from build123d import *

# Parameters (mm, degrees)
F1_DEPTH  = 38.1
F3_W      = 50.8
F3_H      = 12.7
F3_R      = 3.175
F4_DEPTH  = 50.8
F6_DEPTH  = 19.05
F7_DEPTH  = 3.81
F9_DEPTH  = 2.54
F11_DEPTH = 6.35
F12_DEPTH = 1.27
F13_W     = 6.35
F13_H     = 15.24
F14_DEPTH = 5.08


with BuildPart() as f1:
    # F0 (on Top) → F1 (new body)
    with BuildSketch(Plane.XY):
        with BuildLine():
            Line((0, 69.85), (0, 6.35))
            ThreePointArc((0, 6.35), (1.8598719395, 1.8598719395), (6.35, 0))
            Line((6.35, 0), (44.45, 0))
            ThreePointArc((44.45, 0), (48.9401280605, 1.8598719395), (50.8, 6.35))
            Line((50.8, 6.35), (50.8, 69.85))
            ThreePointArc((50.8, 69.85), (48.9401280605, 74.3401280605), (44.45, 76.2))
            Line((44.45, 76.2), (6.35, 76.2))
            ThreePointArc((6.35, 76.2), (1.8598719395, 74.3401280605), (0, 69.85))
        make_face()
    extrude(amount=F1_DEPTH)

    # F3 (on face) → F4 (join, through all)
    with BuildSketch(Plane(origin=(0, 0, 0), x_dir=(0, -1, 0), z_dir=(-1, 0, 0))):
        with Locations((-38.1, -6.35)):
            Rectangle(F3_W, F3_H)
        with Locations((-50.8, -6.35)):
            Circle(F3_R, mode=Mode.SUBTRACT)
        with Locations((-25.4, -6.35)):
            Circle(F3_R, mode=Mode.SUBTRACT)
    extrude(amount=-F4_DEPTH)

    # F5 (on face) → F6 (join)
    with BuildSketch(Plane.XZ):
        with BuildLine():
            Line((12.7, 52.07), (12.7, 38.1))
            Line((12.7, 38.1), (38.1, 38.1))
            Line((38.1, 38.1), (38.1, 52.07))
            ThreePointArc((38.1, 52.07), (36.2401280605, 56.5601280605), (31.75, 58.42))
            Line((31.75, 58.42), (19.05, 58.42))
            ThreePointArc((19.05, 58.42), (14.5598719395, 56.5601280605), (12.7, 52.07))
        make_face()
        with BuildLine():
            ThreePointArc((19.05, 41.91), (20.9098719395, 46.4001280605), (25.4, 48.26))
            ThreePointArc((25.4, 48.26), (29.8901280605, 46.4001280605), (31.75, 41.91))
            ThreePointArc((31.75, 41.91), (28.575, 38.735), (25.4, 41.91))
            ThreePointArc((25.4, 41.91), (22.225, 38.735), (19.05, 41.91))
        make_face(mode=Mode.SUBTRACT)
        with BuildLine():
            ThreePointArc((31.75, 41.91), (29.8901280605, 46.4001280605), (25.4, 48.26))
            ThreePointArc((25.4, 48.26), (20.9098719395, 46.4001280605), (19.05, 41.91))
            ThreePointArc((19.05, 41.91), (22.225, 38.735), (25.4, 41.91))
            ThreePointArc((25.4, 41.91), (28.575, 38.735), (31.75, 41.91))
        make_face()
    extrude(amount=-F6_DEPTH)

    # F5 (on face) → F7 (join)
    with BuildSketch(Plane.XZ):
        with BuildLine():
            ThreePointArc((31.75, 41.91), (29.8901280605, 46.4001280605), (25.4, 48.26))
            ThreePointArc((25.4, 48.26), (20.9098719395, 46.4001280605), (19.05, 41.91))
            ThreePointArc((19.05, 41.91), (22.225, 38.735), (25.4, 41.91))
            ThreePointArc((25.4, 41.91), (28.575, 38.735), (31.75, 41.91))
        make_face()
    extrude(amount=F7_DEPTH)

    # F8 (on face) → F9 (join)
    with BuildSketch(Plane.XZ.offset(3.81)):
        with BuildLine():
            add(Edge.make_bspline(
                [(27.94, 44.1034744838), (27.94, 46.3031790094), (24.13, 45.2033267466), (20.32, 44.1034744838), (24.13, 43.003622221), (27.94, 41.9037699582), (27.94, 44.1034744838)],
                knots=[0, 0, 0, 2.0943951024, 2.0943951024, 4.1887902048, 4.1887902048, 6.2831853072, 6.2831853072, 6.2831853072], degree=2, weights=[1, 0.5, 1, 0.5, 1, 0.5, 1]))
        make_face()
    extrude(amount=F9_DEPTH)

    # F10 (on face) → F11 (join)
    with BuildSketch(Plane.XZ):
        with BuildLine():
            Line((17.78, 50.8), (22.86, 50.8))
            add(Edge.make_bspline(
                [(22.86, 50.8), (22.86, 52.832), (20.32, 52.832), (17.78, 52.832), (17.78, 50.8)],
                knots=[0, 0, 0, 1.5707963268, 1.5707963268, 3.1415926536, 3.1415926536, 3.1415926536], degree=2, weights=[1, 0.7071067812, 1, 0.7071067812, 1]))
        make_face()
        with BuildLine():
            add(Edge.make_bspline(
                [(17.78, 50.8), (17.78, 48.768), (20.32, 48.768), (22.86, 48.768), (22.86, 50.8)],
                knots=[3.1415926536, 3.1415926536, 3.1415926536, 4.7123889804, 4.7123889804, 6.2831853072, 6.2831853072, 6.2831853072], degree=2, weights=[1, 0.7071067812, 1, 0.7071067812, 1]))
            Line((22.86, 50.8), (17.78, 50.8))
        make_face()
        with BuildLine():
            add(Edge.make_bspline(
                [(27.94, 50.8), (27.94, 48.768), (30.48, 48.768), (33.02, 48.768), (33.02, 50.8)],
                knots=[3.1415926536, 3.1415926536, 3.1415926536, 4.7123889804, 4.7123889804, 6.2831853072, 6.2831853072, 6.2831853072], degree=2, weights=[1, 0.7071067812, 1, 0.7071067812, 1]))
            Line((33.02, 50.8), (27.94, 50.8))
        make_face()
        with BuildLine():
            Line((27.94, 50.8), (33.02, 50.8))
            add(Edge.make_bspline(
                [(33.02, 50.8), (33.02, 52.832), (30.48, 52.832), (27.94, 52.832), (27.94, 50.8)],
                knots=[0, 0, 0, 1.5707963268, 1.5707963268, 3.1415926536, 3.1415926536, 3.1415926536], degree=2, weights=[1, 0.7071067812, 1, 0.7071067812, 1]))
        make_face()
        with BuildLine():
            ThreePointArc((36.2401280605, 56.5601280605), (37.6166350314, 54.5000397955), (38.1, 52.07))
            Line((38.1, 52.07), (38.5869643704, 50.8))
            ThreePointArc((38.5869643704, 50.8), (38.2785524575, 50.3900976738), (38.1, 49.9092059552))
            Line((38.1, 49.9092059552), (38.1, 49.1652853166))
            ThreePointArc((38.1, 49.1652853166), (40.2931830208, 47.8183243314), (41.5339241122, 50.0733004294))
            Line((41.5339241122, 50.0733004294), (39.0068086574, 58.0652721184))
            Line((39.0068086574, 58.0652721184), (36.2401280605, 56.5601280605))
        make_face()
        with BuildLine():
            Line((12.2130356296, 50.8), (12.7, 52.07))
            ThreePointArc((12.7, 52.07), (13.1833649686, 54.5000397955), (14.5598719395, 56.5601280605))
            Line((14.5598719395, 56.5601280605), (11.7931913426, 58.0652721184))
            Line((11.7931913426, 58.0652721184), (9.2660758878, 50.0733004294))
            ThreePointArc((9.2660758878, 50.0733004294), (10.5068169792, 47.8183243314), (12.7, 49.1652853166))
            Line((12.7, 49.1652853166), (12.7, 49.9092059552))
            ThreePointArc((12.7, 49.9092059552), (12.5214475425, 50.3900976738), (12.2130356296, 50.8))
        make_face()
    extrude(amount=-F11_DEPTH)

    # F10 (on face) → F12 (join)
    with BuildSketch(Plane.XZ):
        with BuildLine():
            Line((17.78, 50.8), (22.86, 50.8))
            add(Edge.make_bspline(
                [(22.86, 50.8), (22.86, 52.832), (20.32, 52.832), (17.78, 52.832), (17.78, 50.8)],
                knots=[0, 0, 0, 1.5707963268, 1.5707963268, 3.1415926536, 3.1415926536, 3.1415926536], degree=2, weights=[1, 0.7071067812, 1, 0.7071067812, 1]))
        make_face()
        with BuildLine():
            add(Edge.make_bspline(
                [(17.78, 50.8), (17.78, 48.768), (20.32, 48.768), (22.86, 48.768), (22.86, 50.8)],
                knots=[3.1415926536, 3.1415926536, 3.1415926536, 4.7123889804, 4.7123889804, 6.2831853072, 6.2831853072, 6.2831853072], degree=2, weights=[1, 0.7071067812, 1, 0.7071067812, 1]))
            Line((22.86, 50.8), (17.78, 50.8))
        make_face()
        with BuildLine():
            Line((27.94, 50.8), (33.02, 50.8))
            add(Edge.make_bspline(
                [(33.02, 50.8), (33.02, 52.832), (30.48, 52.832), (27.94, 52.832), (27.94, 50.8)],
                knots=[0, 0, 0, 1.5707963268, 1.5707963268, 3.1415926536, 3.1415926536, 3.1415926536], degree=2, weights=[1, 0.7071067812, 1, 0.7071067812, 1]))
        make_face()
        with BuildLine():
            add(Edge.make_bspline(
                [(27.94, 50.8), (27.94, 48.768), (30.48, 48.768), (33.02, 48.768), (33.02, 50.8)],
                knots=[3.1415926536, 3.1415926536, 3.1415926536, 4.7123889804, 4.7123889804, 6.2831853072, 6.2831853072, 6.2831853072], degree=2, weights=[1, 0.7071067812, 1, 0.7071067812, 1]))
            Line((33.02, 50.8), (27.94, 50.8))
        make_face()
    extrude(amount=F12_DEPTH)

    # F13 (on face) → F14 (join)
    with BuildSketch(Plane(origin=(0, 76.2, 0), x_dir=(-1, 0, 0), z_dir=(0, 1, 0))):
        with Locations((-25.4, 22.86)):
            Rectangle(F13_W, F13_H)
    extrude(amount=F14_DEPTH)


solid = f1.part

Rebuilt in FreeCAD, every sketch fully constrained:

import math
import FreeCAD as App
import Part
import Sketcher
Q = App.Units.Quantity


def add_polygon(sketch, points):
    """Adds a closed chain of lines whose ends are joined by coincident constraints."""
    first, n = sketch.GeometryCount, len(points)
    for a, b in zip(points, points[1:] + points[:1]):
        sketch.addGeometry(Part.LineSegment(App.Vector(*a, 0), App.Vector(*b, 0)), False)
    for i in range(n):
        sketch.addConstraint(Sketcher.Constraint("Coincident", first + i, 2, first + (i + 1) % n, 1))

doc = App.newDocument("Part")
body = doc.addObject("PartDesign::Body", "Body")

# Sketch on XY plane
sketch1 = body.newObject("Sketcher::SketchObject", "Sketch")
sketch1.AttachmentSupport = (doc.getObject("XY_Plane"), [""])
sketch1.MapMode = "FlatFace"
sketch1.addGeometry([
    Part.LineSegment(App.Vector(0, 69.85, 0), App.Vector(0, 6.35, 0)),  # 0
    Part.ArcOfCircle(Part.Circle(App.Vector(6.35, 6.35, 0), App.Vector(0, 0, 1), 6.35), math.radians(180), math.radians(270)),  # 1
    Part.LineSegment(App.Vector(6.35, 0, 0), App.Vector(44.45, 0, 0)),  # 2
    Part.ArcOfCircle(Part.Circle(App.Vector(44.45, 6.35, 0), App.Vector(0, 0, 1), 6.35), math.radians(-90), math.radians(0)),  # 3
    Part.LineSegment(App.Vector(50.8, 6.35, 0), App.Vector(50.8, 69.85, 0)),  # 4
    Part.ArcOfCircle(Part.Circle(App.Vector(44.45, 69.85, 0), App.Vector(0, 0, 1), 6.35), math.radians(0), math.radians(90)),  # 5
    Part.LineSegment(App.Vector(44.45, 76.2, 0), App.Vector(6.35, 76.2, 0)),  # 6
    Part.ArcOfCircle(Part.Circle(App.Vector(6.35, 69.85, 0), App.Vector(0, 0, 1), 6.35), math.radians(90), math.radians(180)),  # 7
], False)
sketch1.addConstraint([
    Sketcher.Constraint("Tangent", 0, 2, 1, 1),
    Sketcher.Constraint("Tangent", 1, 2, 2, 1),
    Sketcher.Constraint("Tangent", 2, 2, 3, 1),
    Sketcher.Constraint("Tangent", 3, 2, 4, 1),
    Sketcher.Constraint("Tangent", 4, 2, 5, 1),
    Sketcher.Constraint("Tangent", 5, 2, 6, 1),
    Sketcher.Constraint("Tangent", 6, 2, 7, 1),
    Sketcher.Constraint("Tangent", 7, 2, 0, 1),
    Sketcher.Constraint("Vertical", 0),
    Sketcher.Constraint("Horizontal", 2),
    Sketcher.Constraint("Vertical", 4),
    Sketcher.Constraint("Horizontal", 6),
    Sketcher.Constraint("Equal", 1, 3),
    Sketcher.Constraint("Equal", 3, 5),
    Sketcher.Constraint("Equal", 5, 7),
    Sketcher.Constraint("PointOnObject", 0, 2, -2),
    Sketcher.Constraint("PointOnObject", 1, 2, -1),
    Sketcher.Constraint("Radius", 1, Q("0.25 in")),
    Sketcher.Constraint("DistanceX", 2, 1, 2, 2, Q("1.5 in")),
    Sketcher.Constraint("DistanceY", 0, 2, 0, 1, Q("2.5 in")),
])
pad1 = body.newObject("PartDesign::Pad", "Pad")
pad1.Profile = sketch1
pad1.Length = Q("1.5 in")

# Sketch on YZ plane
sketch2 = body.newObject("Sketcher::SketchObject", "Sketch001")
sketch2.AttachmentSupport = (doc.getObject("YZ_Plane"), [""])
sketch2.MapMode = "FlatFace"
add_polygon(sketch2, [(63.5, 0), (63.5, -12.7), (12.7, -12.7), (12.7, 0)])  # lines 0-3
sketch2.addGeometry(Part.Circle(App.Vector(50.8, -6.35, 0), App.Vector(0, 0, 1), 3.175), False)  # 4
sketch2.addGeometry(Part.Circle(App.Vector(25.4, -6.35, 0), App.Vector(0, 0, 1), 3.175), False)  # 5
sketch2.addConstraint([
    Sketcher.Constraint("Vertical", 0),
    Sketcher.Constraint("Horizontal", 1),
    Sketcher.Constraint("Vertical", 2),
    Sketcher.Constraint("Horizontal", 3),
    Sketcher.Constraint("Equal", 4, 5),
    Sketcher.Constraint("PointOnObject", 2, 2, -1),
    Sketcher.Constraint("Horizontal", 4, 3, 5, 3),
    Sketcher.Constraint("Diameter", 4, Q("0.25 in")),
    Sketcher.Constraint("DistanceX", 1, 2, 1, 1, Q("2 in")),
    Sketcher.Constraint("DistanceY", 0, 2, 0, 1, Q("0.5 in")),
    Sketcher.Constraint("DistanceX", -1, 1, 4, 3, Q("2 in")),
    Sketcher.Constraint("DistanceX", -1, 1, 5, 3, Q("1 in")),
    Sketcher.Constraint("DistanceX", -1, 1, 0, 2, Q("2.5 in")),
    Sketcher.Constraint("DistanceY", 4, 3, -1, 1, Q("0.25 in")),
])
pad2 = body.newObject("PartDesign::Pad", "Pad001")
pad2.Profile = sketch2
pad2.Length = Q("2 in")

# Sketch on XZ plane
sketch3 = body.newObject("Sketcher::SketchObject", "Sketch002")
sketch3.AttachmentSupport = (doc.getObject("XZ_Plane"), [""])
sketch3.MapMode = "FlatFace"
sketch3.addGeometry([
    Part.LineSegment(App.Vector(12.7, 52.07, 0), App.Vector(12.7, 38.1, 0)),  # 0
    Part.LineSegment(App.Vector(12.7, 38.1, 0), App.Vector(38.1, 38.1, 0)),  # 1
    Part.LineSegment(App.Vector(38.1, 38.1, 0), App.Vector(38.1, 52.07, 0)),  # 2
    Part.ArcOfCircle(Part.Circle(App.Vector(31.75, 52.07, 0), App.Vector(0, 0, 1), 6.35), math.radians(0), math.radians(90)),  # 3
    Part.LineSegment(App.Vector(31.75, 58.42, 0), App.Vector(19.05, 58.42, 0)),  # 4
    Part.ArcOfCircle(Part.Circle(App.Vector(19.05, 52.07, 0), App.Vector(0, 0, 1), 6.35), math.radians(90), math.radians(180)),  # 5
], False)
sketch3.addConstraint([
    Sketcher.Constraint("Coincident", 0, 2, 1, 1),
    Sketcher.Constraint("Coincident", 1, 2, 2, 1),
    Sketcher.Constraint("Tangent", 2, 2, 3, 1),
    Sketcher.Constraint("Tangent", 3, 2, 4, 1),
    Sketcher.Constraint("Tangent", 4, 2, 5, 1),
    Sketcher.Constraint("Tangent", 5, 2, 0, 1),
    Sketcher.Constraint("Vertical", 0),
    Sketcher.Constraint("Horizontal", 1),
    Sketcher.Constraint("Vertical", 2),
    Sketcher.Constraint("Horizontal", 4),
    Sketcher.Constraint("Equal", 3, 5),
    Sketcher.Constraint("DistanceX", 1, 1, 1, 2, Q("1 in")),
    Sketcher.Constraint("Radius", 3, Q("0.25 in")),
    Sketcher.Constraint("DistanceY", 0, 2, 0, 1, Q("0.55 in")),
    Sketcher.Constraint("DistanceX", -1, 1, 0, 2, Q("0.5 in")),
    Sketcher.Constraint("DistanceY", -1, 1, 0, 2, Q("1.5 in")),
])
pad3 = body.newObject("PartDesign::Pad", "Pad002")
pad3.Profile = sketch3
pad3.Length = Q("0.75 in")
pad3.Reversed = True

# Sketch on XZ plane
sketch4 = body.newObject("Sketcher::SketchObject", "Sketch003")
sketch4.AttachmentSupport = (doc.getObject("XZ_Plane"), [""])
sketch4.MapMode = "FlatFace"
sketch4.addGeometry([
    Part.ArcOfCircle(Part.Circle(App.Vector(25.4, 41.91, 0), App.Vector(0, 0, 1), 6.35), math.radians(0), math.radians(90)),
    Part.ArcOfCircle(Part.Circle(App.Vector(25.4, 41.91, 0), App.Vector(0, 0, 1), 6.35), math.radians(90), math.radians(180)),
    Part.ArcOfCircle(Part.Circle(App.Vector(22.225, 41.91, 0), App.Vector(0, 0, 1), 3.175), math.radians(180), math.radians(360)),
    Part.ArcOfCircle(Part.Circle(App.Vector(28.575, 41.91, 0), App.Vector(0, 0, 1), 3.175), math.radians(180), math.radians(360)),
], False)
sketch4.addConstraint([
    Sketcher.Constraint("Tangent", 0, 2, 1, 1),
    Sketcher.Constraint("Tangent", 1, 2, 2, 1),
    Sketcher.Constraint("Tangent", 2, 2, 3, 1),
    Sketcher.Constraint("Tangent", 3, 2, 0, 1),
    Sketcher.Constraint("Coincident", 2, 2, 0, 3),
    Sketcher.Constraint("Equal", 0, 1),
    Sketcher.Constraint("Horizontal", 1, 3, 2, 3),
    Sketcher.Constraint("Vertical", 1, 3, 0, 2),
    Sketcher.Constraint("Radius", 0, Q("0.25 in")),
    Sketcher.Constraint("DistanceX", -1, 1, 0, 3, Q("1 in")),
    Sketcher.Constraint("DistanceY", -1, 1, 0, 2, Q("1.9 in")),
])
pad4 = body.newObject("PartDesign::Pad", "Pad003")
pad4.Profile = sketch4
pad4.Length = Q("0.15 in")

# Sketch on XZ plane
sketch5 = body.newObject("Sketcher::SketchObject", "Sketch004")
sketch5.AttachmentSupport = (doc.getObject("XZ_Plane"), [""])
sketch5.MapMode = "FlatFace"
sketch5.AttachmentOffset = App.Placement(App.Vector(0, 0, 0.15 * 25.4), App.Rotation())
sketch5.addGeometry(Part.BSplineCurve([App.Vector(27.94, 44.103474, 0), App.Vector(27.94, 46.303179, 0), App.Vector(24.13, 45.203327, 0), App.Vector(20.32, 44.103474, 0), App.Vector(24.13, 43.003622, 0), App.Vector(27.94, 41.90377, 0), App.Vector(27.94, 44.103474, 0)], [3, 2, 2, 3], [0, 2.094395102, 4.188790205, 6.283185307], False, 2, [1, 0.5, 1, 0.5, 1, 0.5, 1], False), False)
sketch5.addConstraint(Sketcher.Constraint("Block", 0))
pad5 = body.newObject("PartDesign::Pad", "Pad004")
pad5.Profile = sketch5
pad5.Length = Q("0.1 in")

# Sketch on XZ plane
sketch6 = body.newObject("Sketcher::SketchObject", "Sketch005")
sketch6.AttachmentSupport = (doc.getObject("XZ_Plane"), [""])
sketch6.MapMode = "FlatFace"
sketch6.addGeometry([
    Part.BSplineCurve([App.Vector(17.78, 50.8, 0), App.Vector(17.78, 50.225264, 0), App.Vector(18.043026, 49.522523, 0), App.Vector(18.723154, 48.97842, 0), App.Vector(19.60158, 48.768, 0), App.Vector(21.03842, 48.768, 0), App.Vector(21.916846, 48.97842, 0), App.Vector(22.596974, 49.522523, 0), App.Vector(22.86, 50.225264, 0), App.Vector(22.86, 51.374736, 0), App.Vector(22.596974, 52.077477, 0), App.Vector(21.916846, 52.62158, 0), App.Vector(21.03842, 52.832, 0), App.Vector(19.60158, 52.832, 0), App.Vector(18.723154, 52.62158, 0), App.Vector(18.043026, 52.077477, 0), App.Vector(17.78, 51.374736, 0), App.Vector(17.78, 50.8, 0)], [6, 4, 4, 4, 6], [3.141592654, 4.71238898, 6.283185307, 7.853981634, 9.424777961], False, 5, [1, 1, 0.965685425, 0.965685425, 1, 1, 0.965685425, 0.965685425, 1, 1, 0.965685425, 0.965685425, 1, 1, 0.965685425, 0.965685425, 1, 1], False),  # 0
    Part.BSplineCurve([App.Vector(33.02, 50.8, 0), App.Vector(33.02, 51.374736, 0), App.Vector(32.756974, 52.077477, 0), App.Vector(32.076846, 52.62158, 0), App.Vector(31.19842, 52.832, 0), App.Vector(29.76158, 52.832, 0), App.Vector(28.883154, 52.62158, 0), App.Vector(28.203026, 52.077477, 0), App.Vector(27.94, 51.374736, 0), App.Vector(27.94, 50.225264, 0), App.Vector(28.203026, 49.522523, 0), App.Vector(28.883154, 48.97842, 0), App.Vector(29.76158, 48.768, 0), App.Vector(31.19842, 48.768, 0), App.Vector(32.076846, 48.97842, 0), App.Vector(32.756974, 49.522523, 0), App.Vector(33.02, 50.225264, 0), App.Vector(33.02, 50.8, 0)], [6, 4, 4, 4, 6], [0, 1.570796327, 3.141592654, 4.71238898, 6.283185307], False, 5, [1, 1, 0.965685425, 0.965685425, 1, 1, 0.965685425, 0.965685425, 1, 1, 0.965685425, 0.965685425, 1, 1, 0.965685425, 0.965685425, 1, 1], False),  # 1
    Part.ArcOfCircle(Part.Circle(App.Vector(31.75, 52.07, 0), App.Vector(0, 0, 1), 6.35), math.radians(0), math.radians(45)),  # 2
    Part.LineSegment(App.Vector(38.1, 52.07, 0), App.Vector(38.586964, 50.8, 0)),  # 3
    Part.ArcOfCircle(Part.Circle(App.Vector(39.838657, 49.537246, 0), App.Vector(0, 0, 1), 1.778), math.radians(134.747951), math.radians(167.924436)),  # 4
    Part.LineSegment(App.Vector(38.1, 49.909206, 0), App.Vector(38.1, 49.165285, 0)),  # 5
    Part.ArcOfCircle(Part.Circle(App.Vector(39.838657, 49.537246, 0), App.Vector(0, 0, 1), 1.778), math.radians(-167.924436), math.radians(17.547306)),  # 6
    Part.LineSegment(App.Vector(41.533924, 50.0733, 0), App.Vector(39.006809, 58.065272, 0)),  # 7
    Part.LineSegment(App.Vector(39.006809, 58.065272, 0), App.Vector(36.240128, 56.560128, 0)),  # 8
    Part.LineSegment(App.Vector(12.213036, 50.8, 0), App.Vector(12.7, 52.07, 0)),  # 9
    Part.ArcOfCircle(Part.Circle(App.Vector(19.05, 52.07, 0), App.Vector(0, 0, 1), 6.35), math.radians(135), math.radians(180)),  # 10
    Part.LineSegment(App.Vector(14.559872, 56.560128, 0), App.Vector(11.793191, 58.065272, 0)),  # 11
    Part.LineSegment(App.Vector(11.793191, 58.065272, 0), App.Vector(9.266076, 50.0733, 0)),  # 12
    Part.ArcOfCircle(Part.Circle(App.Vector(10.961343, 49.537246, 0), App.Vector(0, 0, 1), 1.778), math.radians(162.452694), math.radians(347.924436)),  # 13
    Part.LineSegment(App.Vector(12.7, 49.165285, 0), App.Vector(12.7, 49.909206, 0)),  # 14
    Part.ArcOfCircle(Part.Circle(App.Vector(10.961343, 49.537246, 0), App.Vector(0, 0, 1), 1.778), math.radians(12.075564), math.radians(45.252049)),  # 15
], False)
sketch6.addConstraint([
    Sketcher.Constraint("Block", 0),
    Sketcher.Constraint("Block", 1),
    Sketcher.Constraint("Coincident", 2, 1, 3, 1),
    Sketcher.Constraint("Coincident", 3, 2, 4, 1),
    Sketcher.Constraint("Coincident", 4, 2, 5, 1),
    Sketcher.Constraint("Coincident", 5, 2, 6, 1),
    Sketcher.Constraint("Tangent", 6, 2, 7, 1),
    Sketcher.Constraint("Coincident", 7, 2, 8, 1),
    Sketcher.Constraint("Coincident", 8, 2, 2, 2),
    Sketcher.Constraint("Coincident", 9, 2, 10, 2),
    Sketcher.Constraint("Coincident", 10, 1, 11, 1),
    Sketcher.Constraint("Coincident", 11, 2, 12, 1),
    Sketcher.Constraint("Tangent", 12, 2, 13, 1),
    Sketcher.Constraint("Coincident", 13, 2, 14, 1),
    Sketcher.Constraint("Coincident", 14, 2, 15, 1),
    Sketcher.Constraint("Coincident", 15, 2, 9, 1),
    Sketcher.Constraint("Vertical", 5),
    Sketcher.Constraint("Vertical", 14),
    Sketcher.Constraint("Coincident", 6, 3, 4, 3),
    Sketcher.Constraint("Coincident", 15, 3, 13, 3),
    Sketcher.Constraint("Equal", 4, 6),
    Sketcher.Constraint("Equal", 2, 10),
    Sketcher.Constraint("Equal", 6, 13),
    Sketcher.Constraint("Equal", 13, 15),
    Sketcher.Constraint("Horizontal", 2, 3, 10, 3),
    Sketcher.Constraint("Horizontal", 6, 3, 13, 3),
    Sketcher.Constraint("Horizontal", 10, 3, 2, 1),
    Sketcher.Constraint("Horizontal", 2, 1, 9, 2),
    Sketcher.Constraint("Horizontal", 8, 2, 10, 1),
    Sketcher.Constraint("Horizontal", 7, 2, 11, 2),
    Sketcher.Constraint("Horizontal", 6, 2, 12, 2),
    Sketcher.Constraint("Horizontal", 5, 2, 13, 2),
    Sketcher.Constraint("Horizontal", 3, 2, 15, 2),
    Sketcher.Constraint("Vertical", 2, 1, 4, 2),
    Sketcher.Constraint("Vertical", 9, 2, 13, 2),
    Sketcher.Constraint("Radius", 2, Q("0.25 in")),
    Sketcher.Constraint("Radius", 4, Q("0.07 in")),
    Sketcher.Constraint("DistanceY", -1, 1, 3, 2, Q("2 in")),
    Sketcher.Constraint("DistanceX", -1, 1, 2, 1, Q("1.5 in")),
    Sketcher.Constraint("DistanceX", -1, 1, 9, 2, Q("0.5 in")),
    Sketcher.Constraint("Distance", 7, Q("0.33 in")),
    Sketcher.Constraint("DistanceY", -1, 1, 2, 3, Q("2.05 in")),
    Sketcher.Constraint("Distance", 8, Q("0.124 in")),
    Sketcher.Constraint("DistanceY", 5, 2, 5, 1, 0.743921),
    Sketcher.Constraint("DistanceY", -1, 1, 6, 2, 50.0733),
    Sketcher.Constraint("Distance", 3, 1.36016),
])
pad6 = body.newObject("PartDesign::Pad", "Pad005")
pad6.Profile = sketch6
pad6.Length = Q("0.25 in")
pad6.Reversed = True

# Sketch on XZ plane
sketch7 = body.newObject("Sketcher::SketchObject", "Sketch006")
sketch7.AttachmentSupport = (doc.getObject("XZ_Plane"), [""])
sketch7.MapMode = "FlatFace"
sketch7.addGeometry([
    Part.BSplineCurve([App.Vector(17.78, 50.8, 0), App.Vector(17.78, 50.225264, 0), App.Vector(18.043026, 49.522523, 0), App.Vector(18.723154, 48.97842, 0), App.Vector(19.60158, 48.768, 0), App.Vector(21.03842, 48.768, 0), App.Vector(21.916846, 48.97842, 0), App.Vector(22.596974, 49.522523, 0), App.Vector(22.86, 50.225264, 0), App.Vector(22.86, 51.374736, 0), App.Vector(22.596974, 52.077477, 0), App.Vector(21.916846, 52.62158, 0), App.Vector(21.03842, 52.832, 0), App.Vector(19.60158, 52.832, 0), App.Vector(18.723154, 52.62158, 0), App.Vector(18.043026, 52.077477, 0), App.Vector(17.78, 51.374736, 0), App.Vector(17.78, 50.8, 0)], [6, 4, 4, 4, 6], [3.141592654, 4.71238898, 6.283185307, 7.853981634, 9.424777961], False, 5, [1, 1, 0.965685425, 0.965685425, 1, 1, 0.965685425, 0.965685425, 1, 1, 0.965685425, 0.965685425, 1, 1, 0.965685425, 0.965685425, 1, 1], False),
    Part.BSplineCurve([App.Vector(27.94, 50.8, 0), App.Vector(27.94, 50.225264, 0), App.Vector(28.203026, 49.522523, 0), App.Vector(28.883154, 48.97842, 0), App.Vector(29.76158, 48.768, 0), App.Vector(31.19842, 48.768, 0), App.Vector(32.076846, 48.97842, 0), App.Vector(32.756974, 49.522523, 0), App.Vector(33.02, 50.225264, 0), App.Vector(33.02, 51.374736, 0), App.Vector(32.756974, 52.077477, 0), App.Vector(32.076846, 52.62158, 0), App.Vector(31.19842, 52.832, 0), App.Vector(29.76158, 52.832, 0), App.Vector(28.883154, 52.62158, 0), App.Vector(28.203026, 52.077477, 0), App.Vector(27.94, 51.374736, 0), App.Vector(27.94, 50.8, 0)], [6, 4, 4, 4, 6], [3.141592654, 4.71238898, 6.283185307, 7.853981634, 9.424777961], False, 5, [1, 1, 0.965685425, 0.965685425, 1, 1, 0.965685425, 0.965685425, 1, 1, 0.965685425, 0.965685425, 1, 1, 0.965685425, 0.965685425, 1, 1], False),
], False)
sketch7.addConstraint([
    Sketcher.Constraint("Block", 0),
    Sketcher.Constraint("Block", 1),
])
pad7 = body.newObject("PartDesign::Pad", "Pad006")
pad7.Profile = sketch7
pad7.Length = Q("0.05 in")

# Sketch on XZ plane
sketch8 = body.newObject("Sketcher::SketchObject", "Sketch007")
sketch8.AttachmentSupport = (doc.getObject("XZ_Plane"), [""])
sketch8.MapMode = "FlatFace"
sketch8.AttachmentOffset = App.Placement(App.Vector(0, 0, -3 * 25.4), App.Rotation())
add_polygon(sketch8, [(28.575, 30.48), (28.575, 15.24), (22.225, 15.24), (22.225, 30.48)])  # lines 0-3
sketch8.addConstraint([
    Sketcher.Constraint("Vertical", 0),
    Sketcher.Constraint("Horizontal", 1),
    Sketcher.Constraint("Vertical", 2),
    Sketcher.Constraint("Horizontal", 3),
    Sketcher.Constraint("DistanceY", 0, 2, 0, 1, Q("0.6 in")),
    Sketcher.Constraint("DistanceX", 1, 2, 1, 1, Q("0.25 in")),
    Sketcher.Constraint("DistanceY", -1, 1, 0, 2, Q("0.6 in")),
    Sketcher.Constraint("DistanceX", -1, 1, 0, 2, Q("1.125 in")),
])
pad8 = body.newObject("PartDesign::Pad", "Pad007")
pad8.Profile = sketch8
pad8.Length = Q("0.2 in")
pad8.Reversed = True

doc.recompute()
